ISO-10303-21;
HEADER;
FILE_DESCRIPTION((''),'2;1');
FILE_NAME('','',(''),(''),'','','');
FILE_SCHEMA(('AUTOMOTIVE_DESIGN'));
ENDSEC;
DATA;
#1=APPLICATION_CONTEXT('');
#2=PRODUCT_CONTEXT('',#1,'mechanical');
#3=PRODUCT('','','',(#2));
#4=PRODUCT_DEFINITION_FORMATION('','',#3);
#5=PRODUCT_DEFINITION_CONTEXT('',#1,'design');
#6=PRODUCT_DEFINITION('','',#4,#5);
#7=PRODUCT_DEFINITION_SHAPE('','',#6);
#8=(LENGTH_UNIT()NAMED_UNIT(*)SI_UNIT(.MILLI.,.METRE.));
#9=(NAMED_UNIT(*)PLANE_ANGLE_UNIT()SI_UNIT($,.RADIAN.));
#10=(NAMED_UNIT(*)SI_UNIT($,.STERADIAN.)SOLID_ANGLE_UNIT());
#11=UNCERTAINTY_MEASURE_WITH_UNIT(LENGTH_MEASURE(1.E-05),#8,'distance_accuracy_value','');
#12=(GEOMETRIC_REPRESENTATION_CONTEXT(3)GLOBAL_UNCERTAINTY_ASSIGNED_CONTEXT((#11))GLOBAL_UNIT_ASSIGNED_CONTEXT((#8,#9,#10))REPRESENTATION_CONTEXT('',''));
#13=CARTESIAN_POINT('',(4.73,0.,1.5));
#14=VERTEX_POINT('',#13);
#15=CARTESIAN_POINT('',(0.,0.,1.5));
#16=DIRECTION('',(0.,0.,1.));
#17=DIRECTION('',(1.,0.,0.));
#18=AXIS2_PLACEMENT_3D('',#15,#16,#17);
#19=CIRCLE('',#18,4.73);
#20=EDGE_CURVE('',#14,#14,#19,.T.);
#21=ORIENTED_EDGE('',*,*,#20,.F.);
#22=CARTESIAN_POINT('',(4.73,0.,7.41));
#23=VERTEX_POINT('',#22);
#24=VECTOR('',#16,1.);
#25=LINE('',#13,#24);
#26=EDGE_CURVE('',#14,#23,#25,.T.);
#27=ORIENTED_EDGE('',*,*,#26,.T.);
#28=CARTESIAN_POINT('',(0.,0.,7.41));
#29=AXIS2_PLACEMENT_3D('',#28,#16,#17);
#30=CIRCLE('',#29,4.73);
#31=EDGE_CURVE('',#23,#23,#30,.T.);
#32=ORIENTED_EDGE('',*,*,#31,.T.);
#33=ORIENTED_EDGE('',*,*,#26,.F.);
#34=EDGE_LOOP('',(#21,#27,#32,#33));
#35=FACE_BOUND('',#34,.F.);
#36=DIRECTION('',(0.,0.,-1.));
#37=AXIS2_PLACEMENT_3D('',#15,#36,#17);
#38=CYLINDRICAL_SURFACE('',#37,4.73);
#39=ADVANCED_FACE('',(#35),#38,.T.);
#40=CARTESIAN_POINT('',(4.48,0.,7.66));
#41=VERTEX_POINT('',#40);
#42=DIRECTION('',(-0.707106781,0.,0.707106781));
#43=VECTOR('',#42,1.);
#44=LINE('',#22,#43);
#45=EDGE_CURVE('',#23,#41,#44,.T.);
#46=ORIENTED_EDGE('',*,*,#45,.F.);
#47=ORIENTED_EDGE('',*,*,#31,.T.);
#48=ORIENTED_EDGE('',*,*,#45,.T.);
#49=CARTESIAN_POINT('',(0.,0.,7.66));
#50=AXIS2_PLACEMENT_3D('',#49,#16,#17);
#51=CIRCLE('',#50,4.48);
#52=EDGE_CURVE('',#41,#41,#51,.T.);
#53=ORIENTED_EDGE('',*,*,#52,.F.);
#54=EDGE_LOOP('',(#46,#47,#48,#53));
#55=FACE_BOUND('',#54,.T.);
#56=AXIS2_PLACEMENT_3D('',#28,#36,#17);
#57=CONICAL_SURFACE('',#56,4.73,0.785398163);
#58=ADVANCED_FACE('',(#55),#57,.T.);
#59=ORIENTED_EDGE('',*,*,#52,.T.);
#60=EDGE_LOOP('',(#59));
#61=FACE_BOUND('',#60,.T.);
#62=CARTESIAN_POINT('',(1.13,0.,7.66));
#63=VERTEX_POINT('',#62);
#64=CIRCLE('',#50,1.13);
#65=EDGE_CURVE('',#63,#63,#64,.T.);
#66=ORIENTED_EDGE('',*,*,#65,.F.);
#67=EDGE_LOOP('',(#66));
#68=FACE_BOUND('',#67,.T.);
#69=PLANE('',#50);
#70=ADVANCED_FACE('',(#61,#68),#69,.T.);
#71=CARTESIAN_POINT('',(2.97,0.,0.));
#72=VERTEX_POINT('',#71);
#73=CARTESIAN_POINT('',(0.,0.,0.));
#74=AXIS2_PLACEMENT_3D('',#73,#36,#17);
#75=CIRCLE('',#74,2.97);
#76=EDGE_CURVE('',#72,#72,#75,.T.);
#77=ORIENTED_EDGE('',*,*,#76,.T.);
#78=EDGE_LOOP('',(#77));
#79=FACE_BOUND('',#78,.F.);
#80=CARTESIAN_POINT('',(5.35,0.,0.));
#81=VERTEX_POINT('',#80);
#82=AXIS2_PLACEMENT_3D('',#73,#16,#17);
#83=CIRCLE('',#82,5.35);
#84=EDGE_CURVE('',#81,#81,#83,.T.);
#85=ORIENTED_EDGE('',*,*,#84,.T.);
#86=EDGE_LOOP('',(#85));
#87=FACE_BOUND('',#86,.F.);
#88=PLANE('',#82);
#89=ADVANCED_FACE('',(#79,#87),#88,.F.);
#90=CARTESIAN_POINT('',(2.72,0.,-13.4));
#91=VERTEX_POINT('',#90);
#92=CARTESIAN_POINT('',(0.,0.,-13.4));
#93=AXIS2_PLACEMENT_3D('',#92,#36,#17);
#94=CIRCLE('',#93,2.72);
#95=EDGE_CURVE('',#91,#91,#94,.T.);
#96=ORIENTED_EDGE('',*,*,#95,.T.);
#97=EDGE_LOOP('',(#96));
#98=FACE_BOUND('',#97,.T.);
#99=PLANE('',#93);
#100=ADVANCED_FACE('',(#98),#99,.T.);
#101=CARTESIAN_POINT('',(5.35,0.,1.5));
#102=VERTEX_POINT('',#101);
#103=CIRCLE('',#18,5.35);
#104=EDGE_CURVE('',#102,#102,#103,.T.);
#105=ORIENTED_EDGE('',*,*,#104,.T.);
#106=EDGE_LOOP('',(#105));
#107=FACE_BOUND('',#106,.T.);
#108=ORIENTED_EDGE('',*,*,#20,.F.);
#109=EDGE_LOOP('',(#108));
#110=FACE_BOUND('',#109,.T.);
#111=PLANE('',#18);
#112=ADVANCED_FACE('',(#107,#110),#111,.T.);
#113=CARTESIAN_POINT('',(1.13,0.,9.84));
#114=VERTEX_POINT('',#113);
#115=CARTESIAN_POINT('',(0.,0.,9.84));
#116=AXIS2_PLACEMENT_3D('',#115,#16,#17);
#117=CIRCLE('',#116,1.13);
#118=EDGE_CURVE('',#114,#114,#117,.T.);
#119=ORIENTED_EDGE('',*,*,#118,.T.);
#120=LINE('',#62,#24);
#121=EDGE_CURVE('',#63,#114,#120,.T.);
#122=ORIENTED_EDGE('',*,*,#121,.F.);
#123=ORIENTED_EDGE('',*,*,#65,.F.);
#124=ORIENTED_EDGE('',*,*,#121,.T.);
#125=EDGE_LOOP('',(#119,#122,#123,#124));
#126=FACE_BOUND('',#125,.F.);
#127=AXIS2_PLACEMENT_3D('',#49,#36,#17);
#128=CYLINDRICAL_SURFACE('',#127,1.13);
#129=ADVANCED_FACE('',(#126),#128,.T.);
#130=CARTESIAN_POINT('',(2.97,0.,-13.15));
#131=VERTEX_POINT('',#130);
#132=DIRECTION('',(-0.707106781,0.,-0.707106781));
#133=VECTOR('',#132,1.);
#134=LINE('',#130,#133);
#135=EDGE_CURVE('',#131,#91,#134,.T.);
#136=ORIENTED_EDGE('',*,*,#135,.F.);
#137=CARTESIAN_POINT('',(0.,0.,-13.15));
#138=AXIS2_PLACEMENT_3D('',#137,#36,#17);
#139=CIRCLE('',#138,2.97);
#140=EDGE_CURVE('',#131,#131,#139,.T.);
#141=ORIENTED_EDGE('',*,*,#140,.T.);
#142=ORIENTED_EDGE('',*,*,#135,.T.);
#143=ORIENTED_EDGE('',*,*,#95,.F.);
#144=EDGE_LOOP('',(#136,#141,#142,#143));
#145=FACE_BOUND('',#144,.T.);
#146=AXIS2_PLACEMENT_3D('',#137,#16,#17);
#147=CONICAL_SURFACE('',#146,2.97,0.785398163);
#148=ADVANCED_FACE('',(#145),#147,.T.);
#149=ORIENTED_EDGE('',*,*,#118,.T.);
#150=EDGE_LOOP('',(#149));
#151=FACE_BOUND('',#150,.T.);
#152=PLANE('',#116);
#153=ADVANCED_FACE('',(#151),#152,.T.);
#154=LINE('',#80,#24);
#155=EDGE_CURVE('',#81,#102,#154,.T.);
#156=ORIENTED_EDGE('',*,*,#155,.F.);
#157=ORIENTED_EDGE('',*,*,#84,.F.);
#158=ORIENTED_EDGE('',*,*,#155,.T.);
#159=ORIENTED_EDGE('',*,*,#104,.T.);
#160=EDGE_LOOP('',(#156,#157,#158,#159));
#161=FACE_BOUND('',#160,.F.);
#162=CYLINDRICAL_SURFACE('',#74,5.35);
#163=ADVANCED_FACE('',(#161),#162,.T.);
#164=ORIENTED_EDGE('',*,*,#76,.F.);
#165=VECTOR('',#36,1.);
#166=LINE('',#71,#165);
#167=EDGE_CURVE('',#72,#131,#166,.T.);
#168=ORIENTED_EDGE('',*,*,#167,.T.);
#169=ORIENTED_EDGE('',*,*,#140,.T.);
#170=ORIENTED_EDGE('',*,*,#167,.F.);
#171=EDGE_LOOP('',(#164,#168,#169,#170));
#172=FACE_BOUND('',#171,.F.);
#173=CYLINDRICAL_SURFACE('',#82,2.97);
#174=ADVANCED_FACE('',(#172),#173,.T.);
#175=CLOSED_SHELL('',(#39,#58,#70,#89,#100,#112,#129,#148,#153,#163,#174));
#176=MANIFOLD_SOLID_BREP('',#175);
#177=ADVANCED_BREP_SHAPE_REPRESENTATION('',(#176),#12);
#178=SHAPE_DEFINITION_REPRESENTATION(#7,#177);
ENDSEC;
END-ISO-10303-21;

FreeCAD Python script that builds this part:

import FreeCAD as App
import Part
import Sketcher
from FreeCAD import Vector
Q = App.Units.Quantity


def edges_at(feature, points):
    """Names of the edges that pass closest to the given points."""
    edges = feature.Shape.Edges
    near = lambda p: min(range(len(edges)), key=lambda i: edges[i].distToShape(Part.Vertex(*p))[0])
    return sorted({f"Edge{near(p) + 1}" for p in points})

doc = App.newDocument("Part")
body = doc.addObject("PartDesign::Body", "Body")

sketch1 = body.newObject("Sketcher::SketchObject", "Sketch")
sketch1.AttachmentSupport = (doc.getObject("XY_Plane"), [""])
sketch1.MapMode = "FlatFace"
sketch1.addGeometry(Part.Circle(Vector(0, 0, 0), Vector(0, 0, 1), 5), False)
sketch1.addConstraint(Sketcher.Constraint("Coincident", 0, 3, -1, 1))
sketch1.addConstraint(Sketcher.Constraint("Diameter", 0, Q("10.7 mm")))
pad1 = body.newObject("PartDesign::Pad", "Pad")
pad1.Profile = sketch1
pad1.Length = 1.5

sketch2 = body.newObject("Sketcher::SketchObject", "Sketch001")
sketch2.AttachmentSupport = (doc.getObject("XY_Plane"), [""])
sketch2.MapMode = "FlatFace"
sketch2.AttachmentOffset = App.Placement(Vector(0, 0, 1.5), App.Rotation())
sketch2.addGeometry(Part.Circle(Vector(0, 0, 0), Vector(0, 0, 1), 4.7), False)
sketch2.addConstraint(Sketcher.Constraint("Coincident", 0, 3, -1, 1))
sketch2.addConstraint(Sketcher.Constraint("Diameter", 0, Q("9.46 mm")))
pad2 = body.newObject("PartDesign::Pad", "Pad001")
pad2.Profile = sketch2
pad2.Length = 6.16

sketch3 = body.newObject("Sketcher::SketchObject", "Sketch002")
sketch3.AttachmentSupport = (doc.getObject("XY_Plane"), [""])
sketch3.MapMode = "FlatFace"
sketch3.addGeometry(Part.Circle(Vector(0, 0, 0), Vector(0, 0, 1), 3), False)
sketch3.addConstraint(Sketcher.Constraint("Coincident", 0, 3, -1, 1))
sketch3.addConstraint(Sketcher.Constraint("Diameter", 0, Q("5.94 mm")))
pad3 = body.newObject("PartDesign::Pad", "Pad002")
pad3.Profile = sketch3
pad3.Length = 13.4
pad3.Reversed = True

sketch4 = body.newObject("Sketcher::SketchObject", "Sketch003")
sketch4.AttachmentSupport = (doc.getObject("XY_Plane"), [""])
sketch4.MapMode = "FlatFace"
sketch4.AttachmentOffset = App.Placement(Vector(0, 0, 7.66), App.Rotation())
sketch4.addGeometry(Part.Circle(Vector(0, 0, 0), Vector(0, 0, 1), 1.1), False)
sketch4.addConstraint(Sketcher.Constraint("Coincident", 0, 3, -1, 1))
sketch4.addConstraint(Sketcher.Constraint("Diameter", 0, Q("2.26 mm")))
pad4 = body.newObject("PartDesign::Pad", "Pad003")
pad4.Profile = sketch4
pad4.Length = 2.18
doc.recompute()

chamfer = body.newObject("PartDesign::Chamfer", "Chamfer")
chamfer.Base = (pad4, edges_at(pad4, [(-4.73, 0, 7.66)]))
chamfer.Size = 0.25
doc.recompute()

chamfer2 = body.newObject("PartDesign::Chamfer", "Chamfer001")
chamfer2.Base = (chamfer, edges_at(chamfer, [(-2.97, 0, -13.4)]))
chamfer2.Size = 0.25

doc.recompute()
